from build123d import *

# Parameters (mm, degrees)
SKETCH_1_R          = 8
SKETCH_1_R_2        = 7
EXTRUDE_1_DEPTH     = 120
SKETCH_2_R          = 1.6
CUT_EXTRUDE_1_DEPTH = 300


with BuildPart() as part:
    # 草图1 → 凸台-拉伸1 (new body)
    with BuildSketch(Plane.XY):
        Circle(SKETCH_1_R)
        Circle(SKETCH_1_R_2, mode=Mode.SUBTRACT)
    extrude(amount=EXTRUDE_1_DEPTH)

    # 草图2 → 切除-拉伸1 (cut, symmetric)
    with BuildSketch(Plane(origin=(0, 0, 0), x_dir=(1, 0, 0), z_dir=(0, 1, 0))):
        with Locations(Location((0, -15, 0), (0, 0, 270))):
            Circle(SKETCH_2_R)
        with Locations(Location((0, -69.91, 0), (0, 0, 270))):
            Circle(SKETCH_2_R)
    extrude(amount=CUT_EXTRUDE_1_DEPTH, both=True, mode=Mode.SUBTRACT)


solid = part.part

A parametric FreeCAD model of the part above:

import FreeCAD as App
import Part
import Sketcher
Q = App.Units.Quantity

doc = App.newDocument("Part")
body = doc.addObject("PartDesign::Body", "Body")

sketch1 = body.newObject("Sketcher::SketchObject", "Sketch")
sketch1.AttachmentSupport = (doc.getObject("XY_Plane"), [""])
sketch1.MapMode = "FlatFace"
sketch1.addGeometry([
    Part.Circle(App.Vector(0, 0, 0), App.Vector(0, 0, 1), 8),
    Part.Circle(App.Vector(0, 0, 0), App.Vector(0, 0, 1), 7),
], False)
sketch1.addConstraint([
    Sketcher.Constraint("Coincident", 0, 3, -1, 1),
    Sketcher.Constraint("Coincident", 1, 3, -1, 1),
    Sketcher.Constraint("Diameter", 0, Q("16 mm")),
    Sketcher.Constraint("Diameter", 1, Q("14 mm")),
])
pad1 = body.newObject("PartDesign::Pad", "Pad")
pad1.Profile = sketch1
pad1.Length = 120

sketch2 = body.newObject("Sketcher::SketchObject", "Sketch001")
sketch2.AttachmentSupport = (doc.getObject("XZ_Plane"), [""])
sketch2.MapMode = "FlatFace"
sketch2.addGeometry([
    Part.Circle(App.Vector(0, 15, 0), App.Vector(0, 0, 1), 1.6),
    Part.Circle(App.Vector(0, 69.9, 0), App.Vector(0, 0, 1), 1.6),
], False)
sketch2.addConstraint([
    Sketcher.Constraint("Equal", 0, 1),
    Sketcher.Constraint("PointOnObject", 0, 3, -2),
    Sketcher.Constraint("PointOnObject", 1, 3, -2),
    Sketcher.Constraint("Diameter", 0, Q("3.2 mm")),
    Sketcher.Constraint("DistanceY", -1, 1, 0, 3, Q("15 mm")),
    Sketcher.Constraint("DistanceY", -1, 1, 1, 3, Q("69.91 mm")),
])
pocket1 = body.newObject("PartDesign::Pocket", "Pocket")
pocket1.Profile = sketch2
pocket1.Length = 600
pocket1.Midplane = True

doc.recompute()
